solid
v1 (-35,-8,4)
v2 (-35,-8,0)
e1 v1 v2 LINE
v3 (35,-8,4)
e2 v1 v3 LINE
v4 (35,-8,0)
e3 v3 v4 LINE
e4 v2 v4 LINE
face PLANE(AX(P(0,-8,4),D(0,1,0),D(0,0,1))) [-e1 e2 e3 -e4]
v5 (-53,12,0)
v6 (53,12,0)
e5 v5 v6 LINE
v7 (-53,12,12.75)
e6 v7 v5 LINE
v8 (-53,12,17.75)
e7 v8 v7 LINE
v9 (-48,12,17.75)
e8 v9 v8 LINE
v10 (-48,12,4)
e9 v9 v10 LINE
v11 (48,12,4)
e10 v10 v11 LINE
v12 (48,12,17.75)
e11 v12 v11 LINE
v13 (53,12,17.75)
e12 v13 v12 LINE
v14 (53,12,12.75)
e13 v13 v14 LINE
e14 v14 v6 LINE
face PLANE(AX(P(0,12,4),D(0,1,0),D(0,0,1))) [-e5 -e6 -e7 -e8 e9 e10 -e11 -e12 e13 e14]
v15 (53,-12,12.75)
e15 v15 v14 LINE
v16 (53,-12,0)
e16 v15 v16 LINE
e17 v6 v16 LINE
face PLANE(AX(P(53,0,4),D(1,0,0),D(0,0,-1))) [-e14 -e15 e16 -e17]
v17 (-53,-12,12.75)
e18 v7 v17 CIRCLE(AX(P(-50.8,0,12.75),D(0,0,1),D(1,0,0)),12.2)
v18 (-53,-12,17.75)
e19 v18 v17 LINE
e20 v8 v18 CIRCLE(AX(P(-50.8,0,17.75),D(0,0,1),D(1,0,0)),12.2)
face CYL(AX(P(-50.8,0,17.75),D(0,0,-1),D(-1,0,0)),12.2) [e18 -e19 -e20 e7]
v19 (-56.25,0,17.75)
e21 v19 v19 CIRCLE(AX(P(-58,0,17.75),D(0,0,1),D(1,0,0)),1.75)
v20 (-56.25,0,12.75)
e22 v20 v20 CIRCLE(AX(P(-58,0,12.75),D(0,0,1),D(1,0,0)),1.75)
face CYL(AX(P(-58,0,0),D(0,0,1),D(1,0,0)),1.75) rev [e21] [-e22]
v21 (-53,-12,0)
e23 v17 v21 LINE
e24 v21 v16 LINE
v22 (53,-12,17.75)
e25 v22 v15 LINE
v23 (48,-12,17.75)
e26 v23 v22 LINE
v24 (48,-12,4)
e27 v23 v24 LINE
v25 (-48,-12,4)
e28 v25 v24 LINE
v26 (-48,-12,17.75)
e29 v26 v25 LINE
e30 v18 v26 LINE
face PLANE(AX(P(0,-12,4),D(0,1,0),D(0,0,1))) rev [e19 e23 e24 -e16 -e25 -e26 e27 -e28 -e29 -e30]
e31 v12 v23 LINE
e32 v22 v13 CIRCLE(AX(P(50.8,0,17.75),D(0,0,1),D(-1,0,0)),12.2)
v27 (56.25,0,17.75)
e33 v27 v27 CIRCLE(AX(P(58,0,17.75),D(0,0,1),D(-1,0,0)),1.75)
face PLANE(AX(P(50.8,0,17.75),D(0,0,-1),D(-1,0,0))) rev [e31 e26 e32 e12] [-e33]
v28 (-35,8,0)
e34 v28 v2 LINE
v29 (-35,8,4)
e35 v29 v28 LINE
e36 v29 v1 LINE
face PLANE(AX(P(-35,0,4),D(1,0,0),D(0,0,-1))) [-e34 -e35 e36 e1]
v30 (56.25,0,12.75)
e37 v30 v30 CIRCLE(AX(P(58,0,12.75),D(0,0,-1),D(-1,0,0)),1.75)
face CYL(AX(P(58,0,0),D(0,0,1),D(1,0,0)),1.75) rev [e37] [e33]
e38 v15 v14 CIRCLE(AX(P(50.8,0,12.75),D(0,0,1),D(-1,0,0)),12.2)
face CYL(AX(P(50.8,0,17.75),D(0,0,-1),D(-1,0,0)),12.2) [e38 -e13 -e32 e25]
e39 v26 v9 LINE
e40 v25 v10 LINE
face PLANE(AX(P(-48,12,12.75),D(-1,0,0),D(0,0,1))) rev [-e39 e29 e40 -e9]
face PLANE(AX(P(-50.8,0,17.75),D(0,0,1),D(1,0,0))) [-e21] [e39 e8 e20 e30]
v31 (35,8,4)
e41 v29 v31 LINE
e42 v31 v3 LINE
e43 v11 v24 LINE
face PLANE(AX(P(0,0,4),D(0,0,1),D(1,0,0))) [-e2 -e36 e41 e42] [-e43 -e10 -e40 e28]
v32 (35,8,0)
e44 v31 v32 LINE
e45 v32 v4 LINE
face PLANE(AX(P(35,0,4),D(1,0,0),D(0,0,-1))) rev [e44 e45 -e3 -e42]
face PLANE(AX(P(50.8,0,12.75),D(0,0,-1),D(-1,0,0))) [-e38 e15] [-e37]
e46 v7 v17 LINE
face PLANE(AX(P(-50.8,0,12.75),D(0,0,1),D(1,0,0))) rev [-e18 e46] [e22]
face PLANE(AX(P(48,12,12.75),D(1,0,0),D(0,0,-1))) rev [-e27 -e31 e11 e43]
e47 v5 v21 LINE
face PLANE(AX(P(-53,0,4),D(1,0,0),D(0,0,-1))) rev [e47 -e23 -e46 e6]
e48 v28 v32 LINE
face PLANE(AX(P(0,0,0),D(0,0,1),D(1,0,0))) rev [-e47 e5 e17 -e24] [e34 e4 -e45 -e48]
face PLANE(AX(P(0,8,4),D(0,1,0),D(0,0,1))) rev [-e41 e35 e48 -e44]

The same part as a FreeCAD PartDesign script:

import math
import FreeCAD as App
import Part
import Sketcher

V = App.Vector
Q = App.Units.Quantity


def add_polygon(sketch, points):
    """Adds a closed chain of lines whose ends are joined by coincident constraints."""
    first, n = sketch.GeometryCount, len(points)
    for a, b in zip(points, points[1:] + points[:1]):
        sketch.addGeometry(Part.LineSegment(App.Vector(*a, 0), App.Vector(*b, 0)), False)
    for i in range(n):
        sketch.addConstraint(Sketcher.Constraint("Coincident", first + i, 2, first + (i + 1) % n, 1))

doc = App.newDocument("Part")
params = doc.addObject("Spreadsheet::Sheet", "Params")
for row, (alias, value) in enumerate([
    ("sketch1_width", "106 mm"),
    ("sketch1_width2", "70 mm"),
    ("sketch1_height", "24 mm"),
    ("sketch1_height2", "16 mm"),
    ("pad1_length", "4 mm"),
    ("sketch2_width", "5 mm"),
    ("sketch2_height", "24 mm"),
    ("pad2_length", "8.75 mm"),
    ("sketch3_radius", "12.2 mm"),
    ("sketch3_width", "5 mm"),
    ("sketch3_height", "24 mm"),
    ("pad3_length", "5 mm"),
    ("sketch4_diameter", "3.5 mm"),
], start=1):
    params.set(f"A{row}", alias)
    params.set(f"B{row}", "=" + value)
    params.setAlias(f"B{row}", alias)

body = doc.addObject("PartDesign::Body", "Body")

# Sketch on XY plane
sketch1 = body.newObject("Sketcher::SketchObject", "Sketch")
sketch1.AttachmentSupport = (doc.getObject("XY_Plane"), [""])
sketch1.MapMode = "FlatFace"
add_polygon(sketch1, [(-53, 12), (-53, -12), (53, -12), (53, 12)])  # lines 0-3
add_polygon(sketch1, [(35, -8), (-35, -8), (-35, 8), (35, 8)])  # lines 4-7
sketch1.addConstraint([
    Sketcher.Constraint("Vertical", 0),
    Sketcher.Constraint("Horizontal", 1),
    Sketcher.Constraint("Vertical", 2),
    Sketcher.Constraint("Horizontal", 3),
    Sketcher.Constraint("Horizontal", 4),
    Sketcher.Constraint("Vertical", 5),
    Sketcher.Constraint("Horizontal", 6),
    Sketcher.Constraint("Vertical", 7),
    Sketcher.Constraint("Symmetric", 0, 2, 2, 2, -1, 1),
    Sketcher.Constraint("Symmetric", 4, 2, 6, 2, -1, 1),
    Sketcher.Constraint("DistanceX", 1, 1, 1, 2, Q("106 mm")),
    Sketcher.Constraint("DistanceX", 4, 2, 4, 1, Q("70 mm")),
    Sketcher.Constraint("DistanceY", 0, 2, 0, 1, Q("24 mm")),
    Sketcher.Constraint("DistanceY", 5, 1, 5, 2, Q("16 mm")),
])
sketch1.setExpression("Constraints[18]", "Params.sketch1_width")
sketch1.setExpression("Constraints[19]", "Params.sketch1_width2")
sketch1.setExpression("Constraints[20]", "Params.sketch1_height")
sketch1.setExpression("Constraints[21]", "Params.sketch1_height2")
pad1 = body.newObject("PartDesign::Pad", "Pad")
pad1.Profile = sketch1
pad1.setExpression("Length", "Params.pad1_length")

# Sketch on XY plane
sketch2 = body.newObject("Sketcher::SketchObject", "Sketch001")
sketch2.AttachmentSupport = (doc.getObject("XY_Plane"), [""])
sketch2.MapMode = "FlatFace"
sketch2.AttachmentOffset = App.Placement(V(0, 0, 4), App.Rotation())
add_polygon(sketch2, [(-53, 12), (-53, -12), (-48, -12), (-48, 12)])  # lines 0-3
add_polygon(sketch2, [(48, 12), (48, -12), (53, -12), (53, 12)])  # lines 4-7
sketch2.addConstraint([
    Sketcher.Constraint("Vertical", 0),
    Sketcher.Constraint("Horizontal", 1),
    Sketcher.Constraint("Vertical", 2),
    Sketcher.Constraint("Horizontal", 3),
    Sketcher.Constraint("Vertical", 4),
    Sketcher.Constraint("Horizontal", 5),
    Sketcher.Constraint("Vertical", 6),
    Sketcher.Constraint("Horizontal", 7),
    Sketcher.Constraint("Symmetric", 2, 2, 4, 2, -1, 1),
    Sketcher.Constraint("Symmetric", 0, 2, 6, 2, -1, 1),
    Sketcher.Constraint("Horizontal", 1, 2, 4, 2),
    Sketcher.Constraint("DistanceX", 1, 1, 1, 2, Q("5 mm")),
    Sketcher.Constraint("DistanceY", 0, 2, 0, 1, Q("24 mm")),
    Sketcher.Constraint("DistanceX", 0, 2, -1, 1, Q("53 mm")),
])
sketch2.setExpression("Constraints[19]", "Params.sketch2_width")
sketch2.setExpression("Constraints[20]", "Params.sketch2_height")
pad2 = body.newObject("PartDesign::Pad", "Pad001")
pad2.Profile = sketch2
pad2.setExpression("Length", "Params.pad2_length")

# Sketch on XY plane
sketch3 = body.newObject("Sketcher::SketchObject", "Sketch002")
sketch3.AttachmentSupport = (doc.getObject("XY_Plane"), [""])
sketch3.MapMode = "FlatFace"
sketch3.AttachmentOffset = App.Placement(V(0, 0, 12.75), App.Rotation())
sketch3.addGeometry([
    Part.LineSegment(V(-48, 12, 0), V(-53, 12, 0)),  # 0
    Part.ArcOfCircle(Part.Circle(V(-50.8, 0, 0), V(0, 0, 1), 12.2), math.radians(100.388858), math.radians(259.611142)),  # 1
    Part.LineSegment(V(-53, -12, 0), V(-48, -12, 0)),  # 2
    Part.LineSegment(V(-48, -12, 0), V(-48, 12, 0)),  # 3
    Part.LineSegment(V(48, -12, 0), V(53, -12, 0)),  # 4
    Part.ArcOfCircle(Part.Circle(V(50.8, 0, 0), V(0, 0, 1), 12.2), math.radians(-79.611142), math.radians(79.611142)),  # 5
    Part.LineSegment(V(53, 12, 0), V(48, 12, 0)),  # 6
    Part.LineSegment(V(48, 12, 0), V(48, -12, 0)),  # 7
], False)
sketch3.addConstraint([
    Sketcher.Constraint("Coincident", 0, 2, 1, 1),
    Sketcher.Constraint("Coincident", 1, 2, 2, 1),
    Sketcher.Constraint("Coincident", 2, 2, 3, 1),
    Sketcher.Constraint("Coincident", 3, 2, 0, 1),
    Sketcher.Constraint("Coincident", 4, 2, 5, 1),
    Sketcher.Constraint("Coincident", 5, 2, 6, 1),
    Sketcher.Constraint("Coincident", 6, 2, 7, 1),
    Sketcher.Constraint("Coincident", 7, 2, 4, 1),
    Sketcher.Constraint("Horizontal", 0),
    Sketcher.Constraint("Horizontal", 2),
    Sketcher.Constraint("Vertical", 3),
    Sketcher.Constraint("Horizontal", 4),
    Sketcher.Constraint("Horizontal", 6),
    Sketcher.Constraint("Vertical", 7),
    Sketcher.Constraint("Equal", 1, 5),
    Sketcher.Constraint("Symmetric", 1, 3, 5, 3, -1, 1),
    Sketcher.Constraint("Symmetric", 2, 2, 6, 2, -1, 1),
    Sketcher.Constraint("Symmetric", 1, 2, 4, 2, -2),
    Sketcher.Constraint("Horizontal", 3, 2, 5, 2),
    Sketcher.Constraint("Radius", 1, Q("12.2 mm")),
    Sketcher.Constraint("DistanceX", 0, 2, 0, 1, Q("5 mm")),
    Sketcher.Constraint("DistanceY", 3, 1, 3, 2, Q("24 mm")),
    Sketcher.Constraint("DistanceX", 0, 2, -1, 1, Q("53 mm")),
])
sketch3.setExpression("Constraints[19]", "Params.sketch3_radius")
sketch3.setExpression("Constraints[20]", "Params.sketch3_width")
sketch3.setExpression("Constraints[21]", "Params.sketch3_height")
pad3 = body.newObject("PartDesign::Pad", "Pad002")
pad3.Profile = sketch3
pad3.setExpression("Length", "Params.pad3_length")

# Sketch on XY plane
sketch4 = body.newObject("Sketcher::SketchObject", "Sketch003")
sketch4.AttachmentSupport = (doc.getObject("XY_Plane"), [""])
sketch4.MapMode = "FlatFace"
sketch4.AttachmentOffset = App.Placement(V(0, 0, 17.75), App.Rotation())
sketch4.addGeometry([
    Part.Circle(V(-58, 0, 0), V(0, 0, 1), 1.75),
    Part.Circle(V(58, 0, 0), V(0, 0, 1), 1.75),
], False)
sketch4.addConstraint([
    Sketcher.Constraint("Equal", 0, 1),
    Sketcher.Constraint("Symmetric", 0, 3, 1, 3, -1, 1),
    Sketcher.Constraint("PointOnObject", 0, 3, -1),
    Sketcher.Constraint("Diameter", 0, Q("3.5 mm")),
    Sketcher.Constraint("DistanceX", 0, 3, -1, 1, Q("58 mm")),
])
sketch4.setExpression("Constraints[3]", "Params.sketch4_diameter")
pocket1 = body.newObject("PartDesign::Pocket", "Pocket")
pocket1.Profile = sketch4
pocket1.Type = "ThroughAll"

doc.recompute()
